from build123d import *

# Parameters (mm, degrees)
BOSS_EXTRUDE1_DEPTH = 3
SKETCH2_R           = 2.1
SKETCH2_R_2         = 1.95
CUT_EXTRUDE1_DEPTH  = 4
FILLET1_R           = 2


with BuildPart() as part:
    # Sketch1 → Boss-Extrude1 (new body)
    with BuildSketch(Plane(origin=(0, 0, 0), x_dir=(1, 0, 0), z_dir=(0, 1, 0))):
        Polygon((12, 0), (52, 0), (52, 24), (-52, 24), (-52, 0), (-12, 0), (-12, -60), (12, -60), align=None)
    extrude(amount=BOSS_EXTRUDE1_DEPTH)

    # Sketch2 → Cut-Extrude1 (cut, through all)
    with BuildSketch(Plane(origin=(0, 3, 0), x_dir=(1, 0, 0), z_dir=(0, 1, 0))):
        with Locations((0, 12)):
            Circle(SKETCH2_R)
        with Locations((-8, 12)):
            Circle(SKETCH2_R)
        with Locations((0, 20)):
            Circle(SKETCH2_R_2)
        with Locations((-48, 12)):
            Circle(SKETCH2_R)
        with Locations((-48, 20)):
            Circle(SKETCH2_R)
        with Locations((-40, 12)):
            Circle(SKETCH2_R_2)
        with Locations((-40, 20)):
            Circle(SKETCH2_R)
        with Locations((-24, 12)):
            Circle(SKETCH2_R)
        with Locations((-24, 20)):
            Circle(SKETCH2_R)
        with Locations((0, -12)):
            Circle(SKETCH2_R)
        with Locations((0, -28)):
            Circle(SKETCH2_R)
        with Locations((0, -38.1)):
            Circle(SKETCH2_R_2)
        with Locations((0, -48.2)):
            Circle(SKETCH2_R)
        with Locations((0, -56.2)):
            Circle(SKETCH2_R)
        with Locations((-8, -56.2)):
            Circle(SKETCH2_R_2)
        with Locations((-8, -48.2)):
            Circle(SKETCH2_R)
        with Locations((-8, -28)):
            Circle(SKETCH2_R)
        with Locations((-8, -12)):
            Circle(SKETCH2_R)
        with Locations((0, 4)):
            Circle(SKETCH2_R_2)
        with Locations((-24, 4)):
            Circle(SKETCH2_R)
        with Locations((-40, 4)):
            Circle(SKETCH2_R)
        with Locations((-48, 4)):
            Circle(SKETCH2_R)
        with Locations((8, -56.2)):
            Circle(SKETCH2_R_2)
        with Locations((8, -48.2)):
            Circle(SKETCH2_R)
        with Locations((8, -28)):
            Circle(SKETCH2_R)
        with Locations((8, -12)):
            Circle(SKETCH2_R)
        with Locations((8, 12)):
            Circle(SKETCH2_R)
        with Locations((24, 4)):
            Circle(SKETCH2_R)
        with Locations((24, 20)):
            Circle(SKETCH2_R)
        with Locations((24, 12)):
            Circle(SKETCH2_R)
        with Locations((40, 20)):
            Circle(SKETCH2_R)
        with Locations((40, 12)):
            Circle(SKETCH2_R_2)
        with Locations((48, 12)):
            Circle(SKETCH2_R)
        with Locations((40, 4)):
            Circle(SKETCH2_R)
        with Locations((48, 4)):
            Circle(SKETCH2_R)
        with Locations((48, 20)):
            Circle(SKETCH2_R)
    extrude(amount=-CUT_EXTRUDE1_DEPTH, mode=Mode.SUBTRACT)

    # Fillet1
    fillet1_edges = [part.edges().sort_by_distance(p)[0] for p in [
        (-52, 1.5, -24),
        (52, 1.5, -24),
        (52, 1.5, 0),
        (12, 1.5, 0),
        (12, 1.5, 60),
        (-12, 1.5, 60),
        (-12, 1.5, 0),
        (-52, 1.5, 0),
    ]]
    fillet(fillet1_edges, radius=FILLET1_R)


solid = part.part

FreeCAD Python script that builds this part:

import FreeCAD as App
import Part
import Sketcher
from FreeCAD import Vector
Q = App.Units.Quantity


def edges_at(feature, points):
    """Names of the edges that pass closest to the given points."""
    edges = feature.Shape.Edges
    near = lambda p: min(range(len(edges)), key=lambda i: edges[i].distToShape(Part.Vertex(*p))[0])
    return sorted({f"Edge{near(p) + 1}" for p in points})


def add_polygon(sketch, points):
    """Adds a closed chain of lines whose ends are joined by coincident constraints."""
    first, n = sketch.GeometryCount, len(points)
    for a, b in zip(points, points[1:] + points[:1]):
        sketch.addGeometry(Part.LineSegment(App.Vector(*a, 0), App.Vector(*b, 0)), False)
    for i in range(n):
        sketch.addConstraint(Sketcher.Constraint("Coincident", first + i, 2, first + (i + 1) % n, 1))

doc = App.newDocument("Part")
params = doc.addObject("Spreadsheet::Sheet", "Params")
for row, (alias, value) in enumerate([
    ("sketch1_width", "40 mm"),
    ("sketch1_width2", "104 mm"),
    ("sketch1_height", "60 mm"),
    ("pad1_length", "3 mm"),
    ("sketch2_diameter", "4.2 mm"),
    ("sketch2_diameter2", "3.9 mm"),
    ("fillet_radius", "2 mm"),
], start=1):
    params.set(f"A{row}", alias)
    params.set(f"B{row}", "=" + value)
    params.setAlias(f"B{row}", alias)

body = doc.addObject("PartDesign::Body", "Body")

sketch1 = body.newObject("Sketcher::SketchObject", "Sketch")
sketch1.AttachmentSupport = (doc.getObject("XZ_Plane"), [""])
sketch1.MapMode = "FlatFace"
add_polygon(sketch1, [(12, 0), (52, 0), (52, -24), (-52, -24), (-52, 0), (-12, 0), (-12, 60), (12, 60)])
sketch1.addConstraint(Sketcher.Constraint("Horizontal", 0))
sketch1.addConstraint(Sketcher.Constraint("Vertical", 1))
sketch1.addConstraint(Sketcher.Constraint("Horizontal", 2))
sketch1.addConstraint(Sketcher.Constraint("Vertical", 3))
sketch1.addConstraint(Sketcher.Constraint("Horizontal", 4))
sketch1.addConstraint(Sketcher.Constraint("Vertical", 5))
sketch1.addConstraint(Sketcher.Constraint("Horizontal", 6))
sketch1.addConstraint(Sketcher.Constraint("Vertical", 7))
sketch1.addConstraint(Sketcher.Constraint("Symmetric", 0, 2, 3, 2, -1, 1))
sketch1.addConstraint(Sketcher.Constraint("Symmetric", 4, 2, 7, 2, -2))
sketch1.addConstraint(Sketcher.Constraint("Equal", 6, 1))
sketch1.addConstraint(Sketcher.Constraint("DistanceX", 0, 1, 0, 2, Q("40 mm")))
sketch1.addConstraint(Sketcher.Constraint("DistanceX", 2, 2, 2, 1, Q("104 mm")))
sketch1.addConstraint(Sketcher.Constraint("DistanceY", 5, 1, 5, 2, Q("60 mm")))
sketch1.setExpression("Constraints[19]", "Params.sketch1_width")
sketch1.setExpression("Constraints[20]", "Params.sketch1_width2")
sketch1.setExpression("Constraints[21]", "Params.sketch1_height")
pad1 = body.newObject("PartDesign::Pad", "Pad")
pad1.Profile = sketch1
pad1.setExpression("Length", "Params.pad1_length")
pad1.Reversed = True

sketch2 = body.newObject("Sketcher::SketchObject", "Sketch001")
sketch2.AttachmentSupport = (doc.getObject("XZ_Plane"), [""])
sketch2.MapMode = "FlatFace"
sketch2.AttachmentOffset = App.Placement(Vector(0, 0, -3), App.Rotation())
sketch2.addGeometry(Part.Circle(Vector(0, -12, 0), Vector(0, 0, 1), 2.1), False)
sketch2.addGeometry(Part.Circle(Vector(-8, -12, 0), Vector(0, 0, 1), 2.1), False)
sketch2.addGeometry(Part.Circle(Vector(0, -20, 0), Vector(0, 0, 1), 1.9), False)
sketch2.addGeometry(Part.Circle(Vector(-48, -12, 0), Vector(0, 0, 1), 2.1), False)
sketch2.addGeometry(Part.Circle(Vector(-48, -20, 0), Vector(0, 0, 1), 2.1), False)
sketch2.addGeometry(Part.Circle(Vector(-40, -12, 0), Vector(0, 0, 1), 1.9), False)
sketch2.addGeometry(Part.Circle(Vector(-40, -20, 0), Vector(0, 0, 1), 2.1), False)
sketch2.addGeometry(Part.Circle(Vector(-24, -12, 0), Vector(0, 0, 1), 2.1), False)
sketch2.addGeometry(Part.Circle(Vector(-24, -20, 0), Vector(0, 0, 1), 2.1), False)
sketch2.addGeometry(Part.Circle(Vector(0, 12, 0), Vector(0, 0, 1), 2.1), False)
sketch2.addGeometry(Part.Circle(Vector(0, 28, 0), Vector(0, 0, 1), 2.1), False)
sketch2.addGeometry(Part.Circle(Vector(0, 38.1, 0), Vector(0, 0, 1), 1.9), False)
sketch2.addGeometry(Part.Circle(Vector(0, 48.2, 0), Vector(0, 0, 1), 2.1), False)
sketch2.addGeometry(Part.Circle(Vector(0, 56.2, 0), Vector(0, 0, 1), 2.1), False)
sketch2.addGeometry(Part.Circle(Vector(-8, 56.2, 0), Vector(0, 0, 1), 1.9), False)
sketch2.addGeometry(Part.Circle(Vector(-8, 48.2, 0), Vector(0, 0, 1), 2.1), False)
sketch2.addGeometry(Part.Circle(Vector(-8, 28, 0), Vector(0, 0, 1), 2.1), False)
sketch2.addGeometry(Part.Circle(Vector(-8, 12, 0), Vector(0, 0, 1), 2.1), False)
sketch2.addGeometry(Part.Circle(Vector(0, -4, 0), Vector(0, 0, 1), 1.9), False)
sketch2.addGeometry(Part.Circle(Vector(-24, -4, 0), Vector(0, 0, 1), 2.1), False)
sketch2.addGeometry(Part.Circle(Vector(-40, -4, 0), Vector(0, 0, 1), 2.1), False)
sketch2.addGeometry(Part.Circle(Vector(-48, -4, 0), Vector(0, 0, 1), 2.1), False)
sketch2.addGeometry(Part.Circle(Vector(8, 56.2, 0), Vector(0, 0, 1), 1.9), False)
sketch2.addGeometry(Part.Circle(Vector(8, 48.2, 0), Vector(0, 0, 1), 2.1), False)
sketch2.addGeometry(Part.Circle(Vector(8, 28, 0), Vector(0, 0, 1), 2.1), False)
sketch2.addGeometry(Part.Circle(Vector(8, 12, 0), Vector(0, 0, 1), 2.1), False)
sketch2.addGeometry(Part.Circle(Vector(8, -12, 0), Vector(0, 0, 1), 2.1), False)
sketch2.addGeometry(Part.Circle(Vector(24, -4, 0), Vector(0, 0, 1), 2.1), False)
sketch2.addGeometry(Part.Circle(Vector(24, -20, 0), Vector(0, 0, 1), 2.1), False)
sketch2.addGeometry(Part.Circle(Vector(24, -12, 0), Vector(0, 0, 1), 2.1), False)
sketch2.addGeometry(Part.Circle(Vector(40, -20, 0), Vector(0, 0, 1), 2.1), False)
sketch2.addGeometry(Part.Circle(Vector(40, -12, 0), Vector(0, 0, 1), 1.9), False)
sketch2.addGeometry(Part.Circle(Vector(48, -12, 0), Vector(0, 0, 1), 2.1), False)
sketch2.addGeometry(Part.Circle(Vector(40, -4, 0), Vector(0, 0, 1), 2.1), False)
sketch2.addGeometry(Part.Circle(Vector(48, -4, 0), Vector(0, 0, 1), 2.1), False)
sketch2.addGeometry(Part.Circle(Vector(48, -20, 0), Vector(0, 0, 1), 2.1), False)
sketch2.addConstraint(Sketcher.Constraint("Equal", 0, 1))
sketch2.addConstraint(Sketcher.Constraint("Equal", 1, 3))
sketch2.addConstraint(Sketcher.Constraint("Equal", 3, 4))
sketch2.addConstraint(Sketcher.Constraint("Equal", 2, 5))
sketch2.addConstraint(Sketcher.Constraint("Equal", 4, 6))
sketch2.addConstraint(Sketcher.Constraint("Equal", 6, 7))
sketch2.addConstraint(Sketcher.Constraint("Equal", 7, 8))
sketch2.addConstraint(Sketcher.Constraint("Equal", 8, 9))
sketch2.addConstraint(Sketcher.Constraint("Equal", 9, 10))
sketch2.addConstraint(Sketcher.Constraint("Equal", 5, 11))
sketch2.addConstraint(Sketcher.Constraint("Equal", 10, 12))
sketch2.addConstraint(Sketcher.Constraint("Equal", 12, 13))
sketch2.addConstraint(Sketcher.Constraint("Equal", 11, 14))
sketch2.addConstraint(Sketcher.Constraint("Equal", 13, 15))
sketch2.addConstraint(Sketcher.Constraint("Equal", 15, 16))
sketch2.addConstraint(Sketcher.Constraint("Equal", 16, 17))
sketch2.addConstraint(Sketcher.Constraint("Equal", 14, 18))
sketch2.addConstraint(Sketcher.Constraint("Equal", 17, 19))
sketch2.addConstraint(Sketcher.Constraint("Equal", 19, 20))
sketch2.addConstraint(Sketcher.Constraint("Equal", 20, 21))
sketch2.addConstraint(Sketcher.Constraint("Equal", 18, 22))
sketch2.addConstraint(Sketcher.Constraint("Equal", 21, 23))
sketch2.addConstraint(Sketcher.Constraint("Equal", 23, 24))
sketch2.addConstraint(Sketcher.Constraint("Equal", 24, 25))
sketch2.addConstraint(Sketcher.Constraint("Equal", 25, 26))
sketch2.addConstraint(Sketcher.Constraint("Equal", 26, 27))
sketch2.addConstraint(Sketcher.Constraint("Equal", 27, 28))
sketch2.addConstraint(Sketcher.Constraint("Equal", 28, 29))
sketch2.addConstraint(Sketcher.Constraint("Equal", 29, 30))
sketch2.addConstraint(Sketcher.Constraint("Equal", 22, 31))
sketch2.addConstraint(Sketcher.Constraint("Equal", 30, 32))
sketch2.addConstraint(Sketcher.Constraint("Equal", 32, 33))
sketch2.addConstraint(Sketcher.Constraint("Equal", 33, 34))
sketch2.addConstraint(Sketcher.Constraint("Equal", 34, 35))
sketch2.addConstraint(Sketcher.Constraint("Symmetric", 0, 3, 9, 3, -1, 1))
sketch2.addConstraint(Sketcher.Constraint("Symmetric", 1, 3, 25, 3, -1, 1))
sketch2.addConstraint(Sketcher.Constraint("Symmetric", 17, 3, 26, 3, -1, 1))
sketch2.addConstraint(Sketcher.Constraint("Symmetric", 14, 3, 22, 3, -2))
sketch2.addConstraint(Sketcher.Constraint("Symmetric", 15, 3, 23, 3, -2))
sketch2.addConstraint(Sketcher.Constraint("Symmetric", 16, 3, 24, 3, -2))
sketch2.addConstraint(Sketcher.Constraint("Symmetric", 17, 3, 25, 3, -2))
sketch2.addConstraint(Sketcher.Constraint("Symmetric", 19, 3, 27, 3, -2))
sketch2.addConstraint(Sketcher.Constraint("Symmetric", 8, 3, 28, 3, -2))
sketch2.addConstraint(Sketcher.Constraint("Symmetric", 7, 3, 29, 3, -2))
sketch2.addConstraint(Sketcher.Constraint("Symmetric", 6, 3, 30, 3, -2))
sketch2.addConstraint(Sketcher.Constraint("Symmetric", 5, 3, 31, 3, -2))
sketch2.addConstraint(Sketcher.Constraint("Symmetric", 3, 3, 32, 3, -2))
sketch2.addConstraint(Sketcher.Constraint("Symmetric", 20, 3, 33, 3, -2))
sketch2.addConstraint(Sketcher.Constraint("Symmetric", 21, 3, 34, 3, -2))
sketch2.addConstraint(Sketcher.Constraint("Symmetric", 4, 3, 35, 3, -2))
sketch2.addConstraint(Sketcher.Constraint("PointOnObject", 0, 3, -2))
sketch2.addConstraint(Sketcher.Constraint("PointOnObject", 2, 3, -2))
sketch2.addConstraint(Sketcher.Constraint("PointOnObject", 10, 3, -2))
sketch2.addConstraint(Sketcher.Constraint("PointOnObject", 11, 3, -2))
sketch2.addConstraint(Sketcher.Constraint("PointOnObject", 12, 3, -2))
sketch2.addConstraint(Sketcher.Constraint("PointOnObject", 13, 3, -2))
sketch2.addConstraint(Sketcher.Constraint("PointOnObject", 18, 3, -2))
sketch2.addConstraint(Sketcher.Constraint("Horizontal", 0, 3, 1, 3))
sketch2.addConstraint(Sketcher.Constraint("Horizontal", 1, 3, 3, 3))
sketch2.addConstraint(Sketcher.Constraint("Horizontal", 2, 3, 4, 3))
sketch2.addConstraint(Sketcher.Constraint("Horizontal", 3, 3, 5, 3))
sketch2.addConstraint(Sketcher.Constraint("Horizontal", 4, 3, 6, 3))
sketch2.addConstraint(Sketcher.Constraint("Horizontal", 5, 3, 7, 3))
sketch2.addConstraint(Sketcher.Constraint("Horizontal", 6, 3, 8, 3))
sketch2.addConstraint(Sketcher.Constraint("Horizontal", 13, 3, 14, 3))
sketch2.addConstraint(Sketcher.Constraint("Horizontal", 12, 3, 15, 3))
sketch2.addConstraint(Sketcher.Constraint("Horizontal", 10, 3, 16, 3))
sketch2.addConstraint(Sketcher.Constraint("Horizontal", 18, 3, 19, 3))
sketch2.addConstraint(Sketcher.Constraint("Horizontal", 19, 3, 20, 3))
sketch2.addConstraint(Sketcher.Constraint("Horizontal", 20, 3, 21, 3))
sketch2.addConstraint(Sketcher.Constraint("Vertical", 3, 3, 4, 3))
sketch2.addConstraint(Sketcher.Constraint("Vertical", 5, 3, 6, 3))
sketch2.addConstraint(Sketcher.Constraint("Vertical", 7, 3, 8, 3))
sketch2.addConstraint(Sketcher.Constraint("Vertical", 1, 3, 14, 3))
sketch2.addConstraint(Sketcher.Constraint("Vertical", 14, 3, 15, 3))
sketch2.addConstraint(Sketcher.Constraint("Vertical", 15, 3, 16, 3))
sketch2.addConstraint(Sketcher.Constraint("Vertical", 8, 3, 19, 3))
sketch2.addConstraint(Sketcher.Constraint("Vertical", 6, 3, 20, 3))
sketch2.addConstraint(Sketcher.Constraint("Vertical", 4, 3, 21, 3))
sketch2.addConstraint(Sketcher.Constraint("Diameter", 0, Q("4.2 mm")))
sketch2.addConstraint(Sketcher.Constraint("Diameter", 2, Q("3.9 mm")))
sketch2.addConstraint(Sketcher.Constraint("DistanceY", 0, 3, -1, 1, Q("12 mm")))
sketch2.addConstraint(Sketcher.Constraint("DistanceX", 1, 3, -1, 1, Q("8 mm")))
sketch2.addConstraint(Sketcher.Constraint("DistanceY", 2, 3, -1, 1, Q("20 mm")))
sketch2.addConstraint(Sketcher.Constraint("DistanceX", 3, 3, -1, 1, Q("48 mm")))
sketch2.addConstraint(Sketcher.Constraint("DistanceX", 5, 3, -1, 1, Q("40 mm")))
sketch2.addConstraint(Sketcher.Constraint("DistanceX", 7, 3, -1, 1, Q("24 mm")))
sketch2.addConstraint(Sketcher.Constraint("DistanceY", -1, 1, 10, 3, Q("28 mm")))
sketch2.addConstraint(Sketcher.Constraint("DistanceY", 18, 3, -1, 1, Q("4 mm")))
sketch2.addConstraint(Sketcher.Constraint("DistanceY", 12, 3, 13, 3, Q("8 mm")))
sketch2.addConstraint(Sketcher.Constraint("DistanceY", -1, 1, 11, 3, Q("38.1 mm")))
sketch2.addConstraint(Sketcher.Constraint("DistanceY", -1, 1, 12, 3, Q("48.2 mm")))
sketch2.setExpression("Constraints[79]", "Params.sketch2_diameter")
sketch2.setExpression("Constraints[80]", "Params.sketch2_diameter2")
pocket1 = body.newObject("PartDesign::Pocket", "Pocket")
pocket1.Profile = sketch2
pocket1.Type = "ThroughAll"
pocket1.Reversed = True
doc.recompute()

fillet = body.newObject("PartDesign::Fillet", "Fillet")
fillet.Base = (pocket1, edges_at(pocket1, [
    (-52, 1.5, -24),
    (52, 1.5, -24),
    (52, 1.5, 0),
    (12, 1.5, 0),
    (12, 1.5, 60),
    (-12, 1.5, 60),
    (-12, 1.5, 0),
    (-52, 1.5, 0),
]))
fillet.setExpression("Radius", "Params.fillet_radius")

doc.recompute()
